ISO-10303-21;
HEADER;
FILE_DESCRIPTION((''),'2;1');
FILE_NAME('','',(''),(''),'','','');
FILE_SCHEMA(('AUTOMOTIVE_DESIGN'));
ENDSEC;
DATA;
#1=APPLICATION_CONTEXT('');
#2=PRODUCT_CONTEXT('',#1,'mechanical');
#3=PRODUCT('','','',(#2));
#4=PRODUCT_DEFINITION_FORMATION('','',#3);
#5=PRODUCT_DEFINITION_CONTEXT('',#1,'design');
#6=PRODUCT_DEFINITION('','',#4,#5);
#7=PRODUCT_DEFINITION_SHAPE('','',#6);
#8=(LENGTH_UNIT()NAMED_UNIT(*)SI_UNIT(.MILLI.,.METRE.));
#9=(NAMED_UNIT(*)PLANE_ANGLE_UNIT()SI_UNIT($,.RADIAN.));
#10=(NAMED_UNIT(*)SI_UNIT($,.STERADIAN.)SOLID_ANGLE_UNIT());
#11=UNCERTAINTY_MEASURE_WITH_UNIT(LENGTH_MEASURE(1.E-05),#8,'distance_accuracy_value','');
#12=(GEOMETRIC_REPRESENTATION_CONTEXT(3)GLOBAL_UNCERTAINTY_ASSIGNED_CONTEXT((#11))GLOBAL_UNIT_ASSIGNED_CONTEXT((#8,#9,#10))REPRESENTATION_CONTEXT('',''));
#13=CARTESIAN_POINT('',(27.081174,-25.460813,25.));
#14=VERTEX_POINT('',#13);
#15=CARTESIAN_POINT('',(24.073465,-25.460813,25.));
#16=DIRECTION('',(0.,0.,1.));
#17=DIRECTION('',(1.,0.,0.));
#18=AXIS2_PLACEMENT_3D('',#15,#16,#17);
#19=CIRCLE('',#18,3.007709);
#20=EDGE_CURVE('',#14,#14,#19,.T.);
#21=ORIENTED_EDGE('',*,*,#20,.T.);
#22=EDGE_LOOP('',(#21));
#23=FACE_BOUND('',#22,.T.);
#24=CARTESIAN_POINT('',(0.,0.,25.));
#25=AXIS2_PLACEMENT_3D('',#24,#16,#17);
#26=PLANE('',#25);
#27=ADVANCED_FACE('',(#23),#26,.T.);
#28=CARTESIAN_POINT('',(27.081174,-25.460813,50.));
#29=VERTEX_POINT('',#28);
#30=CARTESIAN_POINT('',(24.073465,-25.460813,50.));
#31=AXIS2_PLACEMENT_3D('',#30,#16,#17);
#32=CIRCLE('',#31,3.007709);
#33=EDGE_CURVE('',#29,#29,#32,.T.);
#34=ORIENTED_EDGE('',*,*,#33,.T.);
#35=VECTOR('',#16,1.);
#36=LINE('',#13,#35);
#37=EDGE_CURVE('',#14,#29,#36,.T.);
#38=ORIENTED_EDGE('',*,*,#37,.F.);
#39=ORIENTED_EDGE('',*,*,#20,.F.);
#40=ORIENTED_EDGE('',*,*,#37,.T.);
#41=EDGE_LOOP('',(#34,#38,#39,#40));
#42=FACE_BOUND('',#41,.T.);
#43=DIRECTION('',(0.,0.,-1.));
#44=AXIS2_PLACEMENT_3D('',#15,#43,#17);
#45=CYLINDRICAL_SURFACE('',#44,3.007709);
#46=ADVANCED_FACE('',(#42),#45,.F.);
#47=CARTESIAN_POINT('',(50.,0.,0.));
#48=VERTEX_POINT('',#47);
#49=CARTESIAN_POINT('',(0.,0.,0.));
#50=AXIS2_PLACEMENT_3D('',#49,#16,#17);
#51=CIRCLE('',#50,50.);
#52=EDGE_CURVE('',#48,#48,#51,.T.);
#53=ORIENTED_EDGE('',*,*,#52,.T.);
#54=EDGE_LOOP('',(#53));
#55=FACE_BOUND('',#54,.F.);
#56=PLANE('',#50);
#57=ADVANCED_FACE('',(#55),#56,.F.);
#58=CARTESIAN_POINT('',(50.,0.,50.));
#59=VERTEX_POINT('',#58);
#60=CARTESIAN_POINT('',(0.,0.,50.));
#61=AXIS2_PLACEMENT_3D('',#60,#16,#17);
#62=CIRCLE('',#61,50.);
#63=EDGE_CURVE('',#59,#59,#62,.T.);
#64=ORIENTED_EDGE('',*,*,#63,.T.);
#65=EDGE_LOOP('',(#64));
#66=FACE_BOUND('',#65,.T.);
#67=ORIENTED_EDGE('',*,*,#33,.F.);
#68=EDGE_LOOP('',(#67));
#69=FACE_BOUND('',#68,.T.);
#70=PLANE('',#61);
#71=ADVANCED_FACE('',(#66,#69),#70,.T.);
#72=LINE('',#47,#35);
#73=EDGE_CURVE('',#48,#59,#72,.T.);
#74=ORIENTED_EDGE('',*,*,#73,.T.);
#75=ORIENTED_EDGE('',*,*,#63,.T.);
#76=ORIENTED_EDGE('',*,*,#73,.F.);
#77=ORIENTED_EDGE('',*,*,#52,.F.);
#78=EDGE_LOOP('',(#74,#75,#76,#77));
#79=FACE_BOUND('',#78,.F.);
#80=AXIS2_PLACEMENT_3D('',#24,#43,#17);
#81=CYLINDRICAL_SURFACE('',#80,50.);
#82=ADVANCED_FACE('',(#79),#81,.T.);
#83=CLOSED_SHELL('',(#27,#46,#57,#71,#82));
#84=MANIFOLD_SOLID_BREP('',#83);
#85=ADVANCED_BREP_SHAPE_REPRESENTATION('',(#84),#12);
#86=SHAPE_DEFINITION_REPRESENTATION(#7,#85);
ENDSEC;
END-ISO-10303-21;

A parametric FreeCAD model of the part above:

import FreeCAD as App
import Part
import Sketcher

V = App.Vector

doc = App.newDocument("Part")
body = doc.addObject("PartDesign::Body", "Body")

# Sketch on XY plane
sketch1 = body.newObject("Sketcher::SketchObject", "Sketch")
sketch1.AttachmentSupport = (doc.getObject("XY_Plane"), [""])
sketch1.MapMode = "FlatFace"
sketch1.addGeometry(Part.Circle(V(0, 0, 0), V(0, 0, 1), 50), False)
sketch1.addConstraint(Sketcher.Constraint("Coincident", 0, 3, -1, 1))
sketch1.addConstraint(Sketcher.Constraint("Diameter", 0, 100.0))
pad1 = body.newObject("PartDesign::Pad", "Pad")
pad1.Profile = sketch1
pad1.Length = 25

# Sketch on XY plane
sketch2 = body.newObject("Sketcher::SketchObject", "Sketch001")
sketch2.AttachmentSupport = (doc.getObject("XY_Plane"), [""])
sketch2.MapMode = "FlatFace"
sketch2.AttachmentOffset = App.Placement(V(0, 0, 25), App.Rotation())
sketch2.addGeometry(Part.LineSegment(V(-1, 23, 0), V(-20, 11, 0)), False)
sketch2.addGeometry(Part.LineSegment(V(-20, 11, 0), V(-20, -12, 0)), False)
sketch2.addGeometry(Part.LineSegment(V(-20, -12, 0), V(1, -23, 0)), False)
sketch2.addGeometry(Part.LineSegment(V(1, -23, 0), V(20, -11, 0)), False)
sketch2.addGeometry(Part.LineSegment(V(20, -11, 0), V(20, 12, 0)), False)
sketch2.addGeometry(Part.LineSegment(V(20, 12, 0), V(-1, 23, 0)), False)
sketch2.addConstraint(Sketcher.Constraint("Coincident", 0, 2, 1, 1))
sketch2.addConstraint(Sketcher.Constraint("Coincident", 1, 2, 2, 1))
sketch2.addConstraint(Sketcher.Constraint("Coincident", 2, 2, 3, 1))
sketch2.addConstraint(Sketcher.Constraint("Coincident", 3, 2, 4, 1))
sketch2.addConstraint(Sketcher.Constraint("Coincident", 4, 2, 5, 1))
sketch2.addConstraint(Sketcher.Constraint("Coincident", 5, 2, 0, 1))
sketch2.addConstraint(Sketcher.Constraint("Symmetric", 0, 2, 3, 2, -1, 1))
sketch2.addConstraint(Sketcher.Constraint("Symmetric", 1, 2, 4, 2, -1, 1))
sketch2.addConstraint(Sketcher.Constraint("Symmetric", 2, 2, 5, 2, -1, 1))
sketch2.addConstraint(Sketcher.Constraint("Equal", 0, 1))
sketch2.addConstraint(Sketcher.Constraint("Equal", 1, 2))
sketch2.addConstraint(Sketcher.Constraint("DistanceX", 2, 2, 4, 2, 18.598101))
sketch2.addConstraint(Sketcher.Constraint("Distance", 0, 23.113021))
sketch2.addConstraint(Sketcher.Constraint("DistanceX", 0, 2, -1, 1, 20.46742))
sketch2.addConstraint(Sketcher.Constraint("DistanceY", -1, 1, 0, 2, 10.737619))
pad2 = body.newObject("PartDesign::Pad", "Pad001")
pad2.Profile = sketch2
pad2.Length = 25

# Sketch on XY plane
sketch3 = body.newObject("Sketcher::SketchObject", "Sketch002")
sketch3.AttachmentSupport = (doc.getObject("XY_Plane"), [""])
sketch3.MapMode = "FlatFace"
sketch3.AttachmentOffset = App.Placement(V(0, 0, 25), App.Rotation())
sketch3.addGeometry(Part.Circle(V(0, 0, 0), V(0, 0, 1), 50), False)
sketch3.addGeometry(Part.Circle(V(24.1, -25.5, 0), V(0, 0, 1), 3), False)
sketch3.addGeometry(Part.LineSegment(V(-20.5, 10.7, 0), V(-0.9, 23.1, 0)), False)
sketch3.addGeometry(Part.LineSegment(V(-0.9, 23.1, 0), V(19.5, 12.4, 0)), False)
sketch3.addGeometry(Part.LineSegment(V(19.5, 12.4, 0), V(20.5, -10.7, 0)), False)
sketch3.addGeometry(Part.LineSegment(V(20.5, -10.7, 0), V(0.9, -23.1, 0)), False)
sketch3.addGeometry(Part.LineSegment(V(0.9, -23.1, 0), V(-19.5, -12.4, 0)), False)
sketch3.addGeometry(Part.LineSegment(V(-19.5, -12.4, 0), V(-20.5, 10.7, 0)), False)
sketch3.addConstraint(Sketcher.Constraint("Coincident", 2, 2, 3, 1))
sketch3.addConstraint(Sketcher.Constraint("Coincident", 3, 2, 4, 1))
sketch3.addConstraint(Sketcher.Constraint("Coincident", 4, 2, 5, 1))
sketch3.addConstraint(Sketcher.Constraint("Coincident", 5, 2, 6, 1))
sketch3.addConstraint(Sketcher.Constraint("Coincident", 6, 2, 7, 1))
sketch3.addConstraint(Sketcher.Constraint("Coincident", 7, 2, 2, 1))
sketch3.addConstraint(Sketcher.Constraint("Coincident", 0, 3, -1, 1))
sketch3.addConstraint(Sketcher.Constraint("Symmetric", 2, 2, 5, 2, -1, 1))
sketch3.addConstraint(Sketcher.Constraint("Symmetric", 3, 2, 6, 2, -1, 1))
sketch3.addConstraint(Sketcher.Constraint("Symmetric", 4, 2, 7, 2, -1, 1))
sketch3.addConstraint(Sketcher.Constraint("Equal", 2, 3))
sketch3.addConstraint(Sketcher.Constraint("Equal", 3, 4))
sketch3.addConstraint(Sketcher.Constraint("Diameter", 0, 100.0))
sketch3.addConstraint(Sketcher.Constraint("Diameter", 1, 6.015418))
sketch3.addConstraint(Sketcher.Constraint("DistanceX", 5, 2, 3, 2, 18.598101))
sketch3.addConstraint(Sketcher.Constraint("Distance", 2, 23.113021))
sketch3.addConstraint(Sketcher.Constraint("DistanceX", 2, 2, -1, 1, 0.934659))
sketch3.addConstraint(Sketcher.Constraint("DistanceX", -1, 1, 4, 2, 20.46742))
sketch3.addConstraint(Sketcher.Constraint("DistanceY", 1, 3, 2, 2, 48.554929))
sketch3.addConstraint(Sketcher.Constraint("DistanceX", -1, 1, 1, 3, 24.073465))
pad3 = body.newObject("PartDesign::Pad", "Pad002")
pad3.Profile = sketch3
pad3.Length = 25

doc.recompute()
